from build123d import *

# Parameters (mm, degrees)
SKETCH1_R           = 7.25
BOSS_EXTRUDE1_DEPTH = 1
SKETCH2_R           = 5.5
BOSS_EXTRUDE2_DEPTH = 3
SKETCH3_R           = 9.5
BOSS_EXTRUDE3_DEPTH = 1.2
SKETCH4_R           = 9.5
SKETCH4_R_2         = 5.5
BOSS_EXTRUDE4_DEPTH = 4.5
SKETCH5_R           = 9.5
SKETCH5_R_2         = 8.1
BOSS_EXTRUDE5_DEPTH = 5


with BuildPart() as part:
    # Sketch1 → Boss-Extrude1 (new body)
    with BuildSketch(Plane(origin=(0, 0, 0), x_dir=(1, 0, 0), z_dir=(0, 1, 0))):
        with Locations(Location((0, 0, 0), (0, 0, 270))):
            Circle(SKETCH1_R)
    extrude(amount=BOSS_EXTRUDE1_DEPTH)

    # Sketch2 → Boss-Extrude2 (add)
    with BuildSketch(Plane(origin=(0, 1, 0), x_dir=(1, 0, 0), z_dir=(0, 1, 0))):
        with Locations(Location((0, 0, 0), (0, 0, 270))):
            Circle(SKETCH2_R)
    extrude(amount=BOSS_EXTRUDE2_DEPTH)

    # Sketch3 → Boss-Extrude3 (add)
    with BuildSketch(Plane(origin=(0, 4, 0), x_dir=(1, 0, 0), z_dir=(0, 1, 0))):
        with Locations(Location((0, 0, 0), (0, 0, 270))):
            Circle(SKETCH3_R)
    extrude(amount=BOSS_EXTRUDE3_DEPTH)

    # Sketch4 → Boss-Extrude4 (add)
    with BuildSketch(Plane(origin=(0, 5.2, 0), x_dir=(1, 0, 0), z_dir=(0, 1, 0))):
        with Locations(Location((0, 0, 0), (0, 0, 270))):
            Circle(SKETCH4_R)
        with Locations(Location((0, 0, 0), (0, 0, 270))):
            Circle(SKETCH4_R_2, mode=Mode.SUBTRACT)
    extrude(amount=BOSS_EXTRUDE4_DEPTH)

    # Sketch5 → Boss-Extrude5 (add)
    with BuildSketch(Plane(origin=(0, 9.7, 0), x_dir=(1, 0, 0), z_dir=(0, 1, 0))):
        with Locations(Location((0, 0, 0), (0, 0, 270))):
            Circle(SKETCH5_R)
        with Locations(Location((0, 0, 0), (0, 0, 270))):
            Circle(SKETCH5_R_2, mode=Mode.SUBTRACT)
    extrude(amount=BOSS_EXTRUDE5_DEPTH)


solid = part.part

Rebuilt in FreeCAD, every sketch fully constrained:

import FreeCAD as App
import Part
import Sketcher
from FreeCAD import Vector

doc = App.newDocument("Part")
body = doc.addObject("PartDesign::Body", "Body")

# Sketch on XZ plane
sketch1 = body.newObject("Sketcher::SketchObject", "Sketch")
sketch1.AttachmentSupport = (doc.getObject("XZ_Plane"), [""])
sketch1.MapMode = "FlatFace"
sketch1.addGeometry(Part.Circle(Vector(0, 0, 0), Vector(0, 0, 1), 7.25), False)
sketch1.addConstraint(Sketcher.Constraint("Coincident", 0, 3, -1, 1))
sketch1.addConstraint(Sketcher.Constraint("Diameter", 0, 14.5))
pad1 = body.newObject("PartDesign::Pad", "Pad")
pad1.Profile = sketch1
pad1.Length = 1
pad1.Reversed = True

# Sketch on XZ plane
sketch2 = body.newObject("Sketcher::SketchObject", "Sketch001")
sketch2.AttachmentSupport = (doc.getObject("XZ_Plane"), [""])
sketch2.MapMode = "FlatFace"
sketch2.AttachmentOffset = App.Placement(Vector(0, 0, -1), App.Rotation())
sketch2.addGeometry(Part.Circle(Vector(0, 0, 0), Vector(0, 0, 1), 5.5), False)
sketch2.addConstraint(Sketcher.Constraint("Coincident", 0, 3, -1, 1))
sketch2.addConstraint(Sketcher.Constraint("Diameter", 0, 11.0))
pad2 = body.newObject("PartDesign::Pad", "Pad001")
pad2.Profile = sketch2
pad2.Length = 3
pad2.Reversed = True

# Sketch on XZ plane
sketch3 = body.newObject("Sketcher::SketchObject", "Sketch002")
sketch3.AttachmentSupport = (doc.getObject("XZ_Plane"), [""])
sketch3.MapMode = "FlatFace"
sketch3.AttachmentOffset = App.Placement(Vector(0, 0, -4), App.Rotation())
sketch3.addGeometry(Part.Circle(Vector(0, 0, 0), Vector(0, 0, 1), 9.5), False)
sketch3.addConstraint(Sketcher.Constraint("Coincident", 0, 3, -1, 1))
sketch3.addConstraint(Sketcher.Constraint("Diameter", 0, 19.0))
pad3 = body.newObject("PartDesign::Pad", "Pad002")
pad3.Profile = sketch3
pad3.Length = 1.2
pad3.Reversed = True

# Sketch on XZ plane
sketch4 = body.newObject("Sketcher::SketchObject", "Sketch003")
sketch4.AttachmentSupport = (doc.getObject("XZ_Plane"), [""])
sketch4.MapMode = "FlatFace"
sketch4.AttachmentOffset = App.Placement(Vector(0, 0, -5.2), App.Rotation())
sketch4.addGeometry(Part.Circle(Vector(0, 0, 0), Vector(0, 0, 1), 9.5), False)
sketch4.addGeometry(Part.Circle(Vector(0, 0, 0), Vector(0, 0, 1), 5.5), False)
sketch4.addConstraint(Sketcher.Constraint("Coincident", 0, 3, -1, 1))
sketch4.addConstraint(Sketcher.Constraint("Coincident", 1, 3, -1, 1))
sketch4.addConstraint(Sketcher.Constraint("Diameter", 0, 19.0))
sketch4.addConstraint(Sketcher.Constraint("Diameter", 1, 11.0))
pad4 = body.newObject("PartDesign::Pad", "Pad003")
pad4.Profile = sketch4
pad4.Length = 4.5
pad4.Reversed = True

# Sketch on XZ plane
sketch5 = body.newObject("Sketcher::SketchObject", "Sketch004")
sketch5.AttachmentSupport = (doc.getObject("XZ_Plane"), [""])
sketch5.MapMode = "FlatFace"
sketch5.AttachmentOffset = App.Placement(Vector(0, 0, -9.7), App.Rotation())
sketch5.addGeometry(Part.Circle(Vector(0, 0, 0), Vector(0, 0, 1), 9.5), False)
sketch5.addGeometry(Part.Circle(Vector(0, 0, 0), Vector(0, 0, 1), 8.1), False)
sketch5.addConstraint(Sketcher.Constraint("Coincident", 0, 3, -1, 1))
sketch5.addConstraint(Sketcher.Constraint("Coincident", 1, 3, -1, 1))
sketch5.addConstraint(Sketcher.Constraint("Diameter", 0, 19.0))
sketch5.addConstraint(Sketcher.Constraint("Diameter", 1, 16.2))
pad5 = body.newObject("PartDesign::Pad", "Pad004")
pad5.Profile = sketch5
pad5.Length = 5
pad5.Reversed = True

doc.recompute()
